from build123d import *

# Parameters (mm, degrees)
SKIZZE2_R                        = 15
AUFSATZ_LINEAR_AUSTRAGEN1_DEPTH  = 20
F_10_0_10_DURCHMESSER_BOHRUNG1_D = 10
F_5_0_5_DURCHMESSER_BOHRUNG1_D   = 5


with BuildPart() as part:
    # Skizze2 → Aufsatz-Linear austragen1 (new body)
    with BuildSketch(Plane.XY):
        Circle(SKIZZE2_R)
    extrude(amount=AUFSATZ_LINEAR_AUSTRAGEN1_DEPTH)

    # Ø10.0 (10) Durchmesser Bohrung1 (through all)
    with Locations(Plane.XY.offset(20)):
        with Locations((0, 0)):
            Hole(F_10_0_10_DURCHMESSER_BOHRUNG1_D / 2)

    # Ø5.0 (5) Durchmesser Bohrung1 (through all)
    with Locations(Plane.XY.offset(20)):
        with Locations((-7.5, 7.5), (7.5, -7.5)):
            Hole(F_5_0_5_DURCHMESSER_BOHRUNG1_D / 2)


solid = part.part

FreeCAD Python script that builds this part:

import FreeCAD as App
import Part
import Sketcher
from FreeCAD import Vector
Q = App.Units.Quantity

doc = App.newDocument("Part")
body = doc.addObject("PartDesign::Body", "Body")

sketch1 = body.newObject("Sketcher::SketchObject", "Sketch")
sketch1.AttachmentSupport = (doc.getObject("XY_Plane"), [""])
sketch1.MapMode = "FlatFace"
sketch1.addGeometry(Part.Circle(Vector(0, 0, 0), Vector(0, 0, 1), 15), False)
sketch1.addConstraint([
    Sketcher.Constraint("Coincident", 0, 3, -1, 1),
    Sketcher.Constraint("Diameter", 0, Q("30 mm")),
])
pad1 = body.newObject("PartDesign::Pad", "Pad")
pad1.Profile = sketch1
pad1.Length = 20

sketch2 = body.newObject("Sketcher::SketchObject", "Sketch001")
sketch2.AttachmentSupport = (doc.getObject("XY_Plane"), [""])
sketch2.MapMode = "FlatFace"
sketch2.AttachmentOffset = App.Placement(Vector(0, 0, 20), App.Rotation())
sketch2.addGeometry(Part.Circle(Vector(0, 0, 0), Vector(0, 0, 1), 5), False)
sketch2.addConstraint([
    Sketcher.Constraint("Coincident", 0, 3, -1, 1),
    Sketcher.Constraint("Diameter", 0, Q("10 mm")),
])
doc.recompute()
hole = body.newObject("PartDesign::Hole", "Hole")
hole.Profile = sketch2
hole.ThreadType = "None"
hole.Diameter = 10
hole.DepthType = "ThroughAll"

sketch3 = body.newObject("Sketcher::SketchObject", "Sketch002")
sketch3.AttachmentSupport = (doc.getObject("XY_Plane"), [""])
sketch3.MapMode = "FlatFace"
sketch3.AttachmentOffset = App.Placement(Vector(0, 0, 20), App.Rotation())
sketch3.addGeometry([
    Part.Circle(Vector(-7.5, 7.5, 0), Vector(0, 0, 1), 2.5),
    Part.Circle(Vector(7.5, -7.5, 0), Vector(0, 0, 1), 2.5),
], False)
sketch3.addConstraint([
    Sketcher.Constraint("Equal", 0, 1),
    Sketcher.Constraint("Symmetric", 0, 3, 1, 3, -1, 1),
    Sketcher.Constraint("Diameter", 0, Q("5 mm")),
    Sketcher.Constraint("DistanceX", 0, 3, 1, 3, Q("15 mm")),
    Sketcher.Constraint("DistanceY", 1, 3, 0, 3, Q("15 mm")),
])
doc.recompute()
hole2 = body.newObject("PartDesign::Hole", "Hole001")
hole2.Profile = sketch3
hole2.ThreadType = "None"
hole2.Diameter = 5
hole2.DepthType = "ThroughAll"

doc.recompute()
